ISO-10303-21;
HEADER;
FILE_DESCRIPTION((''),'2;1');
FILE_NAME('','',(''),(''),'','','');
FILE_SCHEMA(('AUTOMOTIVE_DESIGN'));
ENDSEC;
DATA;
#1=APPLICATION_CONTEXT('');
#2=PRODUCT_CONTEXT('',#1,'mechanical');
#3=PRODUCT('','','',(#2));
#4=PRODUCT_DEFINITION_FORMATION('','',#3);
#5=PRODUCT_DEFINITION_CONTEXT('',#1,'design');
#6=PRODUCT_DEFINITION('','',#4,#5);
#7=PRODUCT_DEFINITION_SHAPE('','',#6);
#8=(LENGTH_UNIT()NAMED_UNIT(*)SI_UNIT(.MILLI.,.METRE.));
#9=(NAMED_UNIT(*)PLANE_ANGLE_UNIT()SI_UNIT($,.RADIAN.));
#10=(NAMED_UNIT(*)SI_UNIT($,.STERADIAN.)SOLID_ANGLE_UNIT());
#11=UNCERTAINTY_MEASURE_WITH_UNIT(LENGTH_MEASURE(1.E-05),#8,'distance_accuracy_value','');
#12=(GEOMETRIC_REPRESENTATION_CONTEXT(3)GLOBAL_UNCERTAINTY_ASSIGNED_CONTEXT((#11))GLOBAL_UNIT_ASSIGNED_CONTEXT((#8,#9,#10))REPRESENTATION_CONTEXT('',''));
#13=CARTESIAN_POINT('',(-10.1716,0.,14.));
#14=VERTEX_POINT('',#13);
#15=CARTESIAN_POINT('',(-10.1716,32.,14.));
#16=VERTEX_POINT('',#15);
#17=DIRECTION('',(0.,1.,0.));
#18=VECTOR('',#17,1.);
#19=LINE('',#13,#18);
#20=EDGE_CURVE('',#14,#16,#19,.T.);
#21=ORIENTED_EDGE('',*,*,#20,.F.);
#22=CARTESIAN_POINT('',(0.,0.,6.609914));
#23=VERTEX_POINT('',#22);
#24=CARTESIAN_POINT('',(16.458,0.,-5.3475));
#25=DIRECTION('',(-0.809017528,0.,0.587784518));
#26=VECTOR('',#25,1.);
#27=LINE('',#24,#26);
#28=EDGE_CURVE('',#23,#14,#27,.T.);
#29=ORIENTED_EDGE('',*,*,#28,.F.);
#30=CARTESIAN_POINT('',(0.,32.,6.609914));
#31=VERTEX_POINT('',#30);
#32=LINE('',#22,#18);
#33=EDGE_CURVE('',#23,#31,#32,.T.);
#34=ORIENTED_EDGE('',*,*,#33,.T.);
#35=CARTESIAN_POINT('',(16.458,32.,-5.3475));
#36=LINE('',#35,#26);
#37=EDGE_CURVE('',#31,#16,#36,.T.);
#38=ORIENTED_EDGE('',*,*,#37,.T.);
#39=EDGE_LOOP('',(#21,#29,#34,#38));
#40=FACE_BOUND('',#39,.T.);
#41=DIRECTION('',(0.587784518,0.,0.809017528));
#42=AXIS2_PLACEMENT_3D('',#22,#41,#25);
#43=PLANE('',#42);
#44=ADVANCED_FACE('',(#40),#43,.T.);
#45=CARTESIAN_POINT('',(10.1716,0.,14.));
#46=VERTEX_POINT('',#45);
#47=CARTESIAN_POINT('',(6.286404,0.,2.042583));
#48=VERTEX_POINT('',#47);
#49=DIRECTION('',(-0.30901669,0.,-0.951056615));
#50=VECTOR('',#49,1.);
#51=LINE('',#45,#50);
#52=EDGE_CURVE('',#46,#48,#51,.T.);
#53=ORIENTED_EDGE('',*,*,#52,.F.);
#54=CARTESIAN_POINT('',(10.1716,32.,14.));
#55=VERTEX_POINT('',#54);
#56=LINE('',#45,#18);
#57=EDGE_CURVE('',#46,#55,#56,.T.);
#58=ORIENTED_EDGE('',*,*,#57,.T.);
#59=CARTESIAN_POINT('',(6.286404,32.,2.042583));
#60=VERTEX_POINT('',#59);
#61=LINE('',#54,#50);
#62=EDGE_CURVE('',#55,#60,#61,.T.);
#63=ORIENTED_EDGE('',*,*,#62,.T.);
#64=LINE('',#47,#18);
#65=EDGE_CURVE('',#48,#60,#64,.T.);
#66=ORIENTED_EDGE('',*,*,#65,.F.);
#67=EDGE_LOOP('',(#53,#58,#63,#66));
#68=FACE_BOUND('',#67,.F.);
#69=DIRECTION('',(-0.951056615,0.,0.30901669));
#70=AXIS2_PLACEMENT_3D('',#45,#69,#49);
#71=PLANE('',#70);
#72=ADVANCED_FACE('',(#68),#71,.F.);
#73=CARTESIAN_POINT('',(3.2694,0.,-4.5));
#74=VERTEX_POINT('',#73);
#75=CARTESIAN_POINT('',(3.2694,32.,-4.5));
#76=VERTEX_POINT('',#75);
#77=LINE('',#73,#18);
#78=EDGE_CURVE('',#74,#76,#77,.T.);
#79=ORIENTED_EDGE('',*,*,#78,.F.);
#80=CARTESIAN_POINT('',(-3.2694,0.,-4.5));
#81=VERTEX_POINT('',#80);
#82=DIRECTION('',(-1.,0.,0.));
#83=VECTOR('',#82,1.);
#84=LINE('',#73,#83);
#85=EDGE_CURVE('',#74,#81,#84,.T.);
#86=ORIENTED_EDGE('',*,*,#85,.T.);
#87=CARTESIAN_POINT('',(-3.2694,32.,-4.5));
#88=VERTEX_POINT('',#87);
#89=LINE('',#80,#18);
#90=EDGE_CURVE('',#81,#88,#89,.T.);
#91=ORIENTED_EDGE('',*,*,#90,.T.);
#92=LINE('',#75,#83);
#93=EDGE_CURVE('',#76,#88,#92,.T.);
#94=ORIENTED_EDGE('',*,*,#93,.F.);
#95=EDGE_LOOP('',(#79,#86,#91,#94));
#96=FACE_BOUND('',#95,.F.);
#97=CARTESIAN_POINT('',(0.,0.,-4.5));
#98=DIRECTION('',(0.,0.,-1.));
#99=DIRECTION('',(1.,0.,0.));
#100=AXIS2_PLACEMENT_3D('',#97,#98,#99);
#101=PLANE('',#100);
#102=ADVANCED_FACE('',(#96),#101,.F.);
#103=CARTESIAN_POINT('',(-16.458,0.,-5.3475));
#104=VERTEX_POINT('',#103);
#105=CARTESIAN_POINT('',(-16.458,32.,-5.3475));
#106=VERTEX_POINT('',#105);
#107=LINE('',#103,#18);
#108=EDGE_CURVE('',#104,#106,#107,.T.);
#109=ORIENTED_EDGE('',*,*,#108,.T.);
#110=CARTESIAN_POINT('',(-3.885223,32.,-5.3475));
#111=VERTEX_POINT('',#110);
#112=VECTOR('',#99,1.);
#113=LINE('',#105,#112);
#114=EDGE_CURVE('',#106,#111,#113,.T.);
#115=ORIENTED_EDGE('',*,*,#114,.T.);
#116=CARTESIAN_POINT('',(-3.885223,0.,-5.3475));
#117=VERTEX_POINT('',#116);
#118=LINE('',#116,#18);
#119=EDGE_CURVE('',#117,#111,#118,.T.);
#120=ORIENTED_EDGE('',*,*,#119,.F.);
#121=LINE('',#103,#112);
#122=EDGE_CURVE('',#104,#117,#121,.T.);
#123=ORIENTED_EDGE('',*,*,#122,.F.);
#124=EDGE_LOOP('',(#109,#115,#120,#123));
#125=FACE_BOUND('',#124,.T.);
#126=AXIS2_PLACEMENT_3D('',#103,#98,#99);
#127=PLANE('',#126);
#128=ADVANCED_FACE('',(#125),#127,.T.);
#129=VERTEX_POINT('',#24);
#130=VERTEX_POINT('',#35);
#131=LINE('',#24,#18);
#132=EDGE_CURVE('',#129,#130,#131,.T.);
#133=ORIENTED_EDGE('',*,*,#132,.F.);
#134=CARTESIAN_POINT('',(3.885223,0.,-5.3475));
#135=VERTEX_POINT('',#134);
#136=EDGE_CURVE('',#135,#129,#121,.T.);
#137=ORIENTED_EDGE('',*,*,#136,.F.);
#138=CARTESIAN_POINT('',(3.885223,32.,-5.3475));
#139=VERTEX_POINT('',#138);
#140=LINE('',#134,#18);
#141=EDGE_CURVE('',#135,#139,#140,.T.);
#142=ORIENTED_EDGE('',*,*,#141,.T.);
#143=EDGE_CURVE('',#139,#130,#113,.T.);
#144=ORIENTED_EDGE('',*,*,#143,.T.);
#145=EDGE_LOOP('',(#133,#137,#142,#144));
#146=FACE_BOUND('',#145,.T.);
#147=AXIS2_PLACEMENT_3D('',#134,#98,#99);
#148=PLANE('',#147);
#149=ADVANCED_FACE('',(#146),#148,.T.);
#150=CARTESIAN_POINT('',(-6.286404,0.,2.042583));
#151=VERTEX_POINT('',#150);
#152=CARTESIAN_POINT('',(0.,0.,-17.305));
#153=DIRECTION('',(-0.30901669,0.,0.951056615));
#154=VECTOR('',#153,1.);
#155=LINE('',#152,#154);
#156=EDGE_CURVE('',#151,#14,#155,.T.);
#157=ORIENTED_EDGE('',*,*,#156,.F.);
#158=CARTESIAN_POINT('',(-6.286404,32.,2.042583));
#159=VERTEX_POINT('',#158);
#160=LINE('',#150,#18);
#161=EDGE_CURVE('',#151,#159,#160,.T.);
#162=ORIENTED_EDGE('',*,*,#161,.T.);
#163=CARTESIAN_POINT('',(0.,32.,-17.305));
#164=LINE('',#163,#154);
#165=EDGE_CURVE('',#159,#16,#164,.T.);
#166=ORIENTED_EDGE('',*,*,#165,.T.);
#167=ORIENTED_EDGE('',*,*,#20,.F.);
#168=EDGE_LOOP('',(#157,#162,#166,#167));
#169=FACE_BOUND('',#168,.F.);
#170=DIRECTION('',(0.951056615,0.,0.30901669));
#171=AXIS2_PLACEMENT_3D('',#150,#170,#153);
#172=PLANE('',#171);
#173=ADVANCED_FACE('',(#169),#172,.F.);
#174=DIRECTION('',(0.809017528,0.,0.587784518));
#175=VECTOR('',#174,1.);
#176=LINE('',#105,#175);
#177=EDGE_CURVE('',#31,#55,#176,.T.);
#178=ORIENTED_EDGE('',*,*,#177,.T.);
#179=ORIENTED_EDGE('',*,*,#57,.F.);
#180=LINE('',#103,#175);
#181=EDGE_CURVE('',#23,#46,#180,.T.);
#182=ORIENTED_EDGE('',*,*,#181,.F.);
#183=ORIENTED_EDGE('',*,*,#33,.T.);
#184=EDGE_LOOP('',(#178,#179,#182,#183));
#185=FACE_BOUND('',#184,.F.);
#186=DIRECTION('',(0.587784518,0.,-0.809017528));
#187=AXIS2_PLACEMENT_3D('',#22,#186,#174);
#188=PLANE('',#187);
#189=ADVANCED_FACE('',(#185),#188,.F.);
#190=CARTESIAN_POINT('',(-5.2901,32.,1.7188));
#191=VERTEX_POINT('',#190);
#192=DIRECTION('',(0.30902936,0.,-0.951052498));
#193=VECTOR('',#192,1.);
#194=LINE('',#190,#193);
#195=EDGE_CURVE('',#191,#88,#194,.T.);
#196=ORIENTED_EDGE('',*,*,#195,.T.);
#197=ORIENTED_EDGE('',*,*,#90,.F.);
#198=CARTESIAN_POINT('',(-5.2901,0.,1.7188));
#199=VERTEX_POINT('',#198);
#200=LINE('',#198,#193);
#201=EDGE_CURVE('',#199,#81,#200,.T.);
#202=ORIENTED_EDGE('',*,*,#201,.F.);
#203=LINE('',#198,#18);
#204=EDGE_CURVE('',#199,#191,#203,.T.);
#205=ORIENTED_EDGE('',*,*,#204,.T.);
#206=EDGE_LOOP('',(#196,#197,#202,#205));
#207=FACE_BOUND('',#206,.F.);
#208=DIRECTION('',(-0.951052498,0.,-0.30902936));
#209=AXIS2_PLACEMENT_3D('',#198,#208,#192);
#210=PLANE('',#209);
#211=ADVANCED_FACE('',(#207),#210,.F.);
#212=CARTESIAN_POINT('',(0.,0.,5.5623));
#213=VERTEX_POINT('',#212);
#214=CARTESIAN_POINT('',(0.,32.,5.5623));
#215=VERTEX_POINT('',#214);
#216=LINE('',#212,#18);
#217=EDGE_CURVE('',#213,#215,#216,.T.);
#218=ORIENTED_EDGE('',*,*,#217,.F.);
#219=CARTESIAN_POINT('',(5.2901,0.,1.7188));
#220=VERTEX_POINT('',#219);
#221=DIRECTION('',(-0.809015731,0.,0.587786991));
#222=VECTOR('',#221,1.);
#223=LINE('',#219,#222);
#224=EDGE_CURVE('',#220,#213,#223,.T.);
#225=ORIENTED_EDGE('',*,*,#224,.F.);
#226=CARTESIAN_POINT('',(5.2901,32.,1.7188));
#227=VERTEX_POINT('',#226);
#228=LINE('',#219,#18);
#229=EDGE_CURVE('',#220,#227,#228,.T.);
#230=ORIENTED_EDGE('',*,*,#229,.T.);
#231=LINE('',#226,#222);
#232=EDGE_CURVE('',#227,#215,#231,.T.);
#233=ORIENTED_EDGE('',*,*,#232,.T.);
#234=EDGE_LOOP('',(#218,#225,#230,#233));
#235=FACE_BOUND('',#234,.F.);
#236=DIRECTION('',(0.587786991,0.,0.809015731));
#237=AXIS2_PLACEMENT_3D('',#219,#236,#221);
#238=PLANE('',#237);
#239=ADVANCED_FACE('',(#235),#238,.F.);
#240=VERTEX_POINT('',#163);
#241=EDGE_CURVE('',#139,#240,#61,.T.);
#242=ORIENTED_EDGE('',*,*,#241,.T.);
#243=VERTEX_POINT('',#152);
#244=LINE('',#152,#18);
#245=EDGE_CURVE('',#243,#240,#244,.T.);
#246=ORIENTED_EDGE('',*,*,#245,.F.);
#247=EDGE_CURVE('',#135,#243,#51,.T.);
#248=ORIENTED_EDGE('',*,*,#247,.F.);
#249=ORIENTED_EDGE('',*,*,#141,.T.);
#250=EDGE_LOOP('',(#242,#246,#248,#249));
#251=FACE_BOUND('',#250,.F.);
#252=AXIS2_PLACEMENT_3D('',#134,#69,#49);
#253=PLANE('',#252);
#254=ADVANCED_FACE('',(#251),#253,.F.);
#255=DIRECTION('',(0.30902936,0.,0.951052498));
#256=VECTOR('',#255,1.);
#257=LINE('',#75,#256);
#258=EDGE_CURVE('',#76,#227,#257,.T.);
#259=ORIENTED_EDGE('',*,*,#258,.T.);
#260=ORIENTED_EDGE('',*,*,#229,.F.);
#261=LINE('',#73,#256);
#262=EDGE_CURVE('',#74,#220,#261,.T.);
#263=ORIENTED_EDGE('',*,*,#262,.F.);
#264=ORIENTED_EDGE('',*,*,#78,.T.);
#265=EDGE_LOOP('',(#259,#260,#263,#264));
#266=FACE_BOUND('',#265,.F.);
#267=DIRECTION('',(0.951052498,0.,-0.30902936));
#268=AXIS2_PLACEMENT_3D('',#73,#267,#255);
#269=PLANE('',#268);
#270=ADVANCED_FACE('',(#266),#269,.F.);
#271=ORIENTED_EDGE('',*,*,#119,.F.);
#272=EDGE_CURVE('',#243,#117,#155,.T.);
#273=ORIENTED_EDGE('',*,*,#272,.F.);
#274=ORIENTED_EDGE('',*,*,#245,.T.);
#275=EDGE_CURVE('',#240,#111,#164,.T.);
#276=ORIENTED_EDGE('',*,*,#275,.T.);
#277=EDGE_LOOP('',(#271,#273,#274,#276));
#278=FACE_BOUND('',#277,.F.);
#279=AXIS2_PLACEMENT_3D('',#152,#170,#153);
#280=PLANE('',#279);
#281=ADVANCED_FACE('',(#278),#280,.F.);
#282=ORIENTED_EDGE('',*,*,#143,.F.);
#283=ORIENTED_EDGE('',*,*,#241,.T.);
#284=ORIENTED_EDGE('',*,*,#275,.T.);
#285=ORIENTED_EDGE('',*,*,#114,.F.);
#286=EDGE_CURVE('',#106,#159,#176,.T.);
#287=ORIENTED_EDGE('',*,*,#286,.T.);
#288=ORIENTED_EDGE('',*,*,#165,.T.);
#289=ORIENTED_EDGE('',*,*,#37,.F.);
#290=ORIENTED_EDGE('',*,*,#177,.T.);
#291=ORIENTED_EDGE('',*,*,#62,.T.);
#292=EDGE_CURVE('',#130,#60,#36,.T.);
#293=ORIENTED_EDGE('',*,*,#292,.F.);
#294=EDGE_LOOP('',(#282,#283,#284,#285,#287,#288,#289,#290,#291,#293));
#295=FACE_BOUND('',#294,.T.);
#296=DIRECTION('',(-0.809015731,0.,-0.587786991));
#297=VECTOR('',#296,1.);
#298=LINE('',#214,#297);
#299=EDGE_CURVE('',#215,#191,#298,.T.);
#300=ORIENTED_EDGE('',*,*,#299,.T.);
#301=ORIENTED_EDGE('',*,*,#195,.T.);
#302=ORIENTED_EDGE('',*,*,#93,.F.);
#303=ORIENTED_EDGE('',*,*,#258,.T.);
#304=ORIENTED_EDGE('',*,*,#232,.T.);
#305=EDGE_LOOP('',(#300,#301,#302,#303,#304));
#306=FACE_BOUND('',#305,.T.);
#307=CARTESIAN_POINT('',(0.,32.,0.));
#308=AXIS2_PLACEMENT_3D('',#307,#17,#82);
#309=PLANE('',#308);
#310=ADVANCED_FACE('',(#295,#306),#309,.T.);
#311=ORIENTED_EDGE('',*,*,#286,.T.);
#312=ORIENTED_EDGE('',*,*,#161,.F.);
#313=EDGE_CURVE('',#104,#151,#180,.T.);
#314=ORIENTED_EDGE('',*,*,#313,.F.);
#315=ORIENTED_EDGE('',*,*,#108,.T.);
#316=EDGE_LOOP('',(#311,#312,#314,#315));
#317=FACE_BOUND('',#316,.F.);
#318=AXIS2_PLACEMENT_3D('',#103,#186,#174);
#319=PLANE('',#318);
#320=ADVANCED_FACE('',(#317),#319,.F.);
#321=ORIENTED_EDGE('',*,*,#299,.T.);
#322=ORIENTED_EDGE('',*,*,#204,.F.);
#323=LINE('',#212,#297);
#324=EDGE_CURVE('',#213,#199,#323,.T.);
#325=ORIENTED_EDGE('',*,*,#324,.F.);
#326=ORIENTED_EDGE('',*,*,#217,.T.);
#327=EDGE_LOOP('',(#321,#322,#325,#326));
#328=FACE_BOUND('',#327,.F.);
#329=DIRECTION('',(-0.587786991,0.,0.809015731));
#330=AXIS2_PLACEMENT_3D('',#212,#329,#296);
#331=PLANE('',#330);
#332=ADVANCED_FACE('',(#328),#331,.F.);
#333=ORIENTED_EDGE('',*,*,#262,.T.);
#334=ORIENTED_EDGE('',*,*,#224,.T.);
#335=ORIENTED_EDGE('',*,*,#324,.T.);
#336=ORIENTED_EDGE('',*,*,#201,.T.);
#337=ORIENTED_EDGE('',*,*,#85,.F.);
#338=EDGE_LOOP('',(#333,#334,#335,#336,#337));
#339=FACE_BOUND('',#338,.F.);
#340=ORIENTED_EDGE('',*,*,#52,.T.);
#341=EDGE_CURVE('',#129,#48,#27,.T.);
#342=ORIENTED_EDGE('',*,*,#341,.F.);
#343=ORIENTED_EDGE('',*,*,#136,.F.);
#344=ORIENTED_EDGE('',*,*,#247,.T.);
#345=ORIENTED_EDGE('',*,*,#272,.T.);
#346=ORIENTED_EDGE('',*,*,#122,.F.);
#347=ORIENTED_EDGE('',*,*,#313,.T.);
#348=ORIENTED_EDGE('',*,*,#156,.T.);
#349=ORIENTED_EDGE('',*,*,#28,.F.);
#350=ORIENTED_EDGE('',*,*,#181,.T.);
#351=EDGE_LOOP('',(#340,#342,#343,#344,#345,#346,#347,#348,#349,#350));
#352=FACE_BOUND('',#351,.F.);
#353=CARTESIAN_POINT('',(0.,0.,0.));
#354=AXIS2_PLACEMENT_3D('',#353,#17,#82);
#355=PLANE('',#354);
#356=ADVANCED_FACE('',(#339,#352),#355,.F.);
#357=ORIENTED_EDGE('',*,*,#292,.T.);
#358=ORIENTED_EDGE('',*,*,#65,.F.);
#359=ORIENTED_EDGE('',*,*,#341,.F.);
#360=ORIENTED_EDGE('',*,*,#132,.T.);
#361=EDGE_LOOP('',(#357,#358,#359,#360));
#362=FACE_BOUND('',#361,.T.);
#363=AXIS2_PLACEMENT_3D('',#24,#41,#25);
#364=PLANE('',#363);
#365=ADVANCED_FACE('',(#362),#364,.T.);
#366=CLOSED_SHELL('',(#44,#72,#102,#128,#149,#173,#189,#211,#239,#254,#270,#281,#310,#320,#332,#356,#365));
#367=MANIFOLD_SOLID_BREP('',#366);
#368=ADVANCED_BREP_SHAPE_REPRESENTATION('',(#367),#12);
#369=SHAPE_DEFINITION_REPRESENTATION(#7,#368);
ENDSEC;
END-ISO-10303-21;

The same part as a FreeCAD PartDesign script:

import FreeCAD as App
import Part
import Sketcher

V = App.Vector
Q = App.Units.Quantity


def add_polygon(sketch, points):
    """Adds a closed chain of lines whose ends are joined by coincident constraints."""
    first, n = sketch.GeometryCount, len(points)
    for a, b in zip(points, points[1:] + points[:1]):
        sketch.addGeometry(Part.LineSegment(App.Vector(*a, 0), App.Vector(*b, 0)), False)
    for i in range(n):
        sketch.addConstraint(Sketcher.Constraint("Coincident", first + i, 2, first + (i + 1) % n, 1))

doc = App.newDocument("Part")
body = doc.addObject("PartDesign::Body", "Body")

# Sketch on XZ plane
sketch1 = doc.addObject("Sketcher::SketchObject", "Sketch")
body.addObject(sketch1)
sketch1.AttachmentSupport = (doc.XZ_Plane, [""])
sketch1.MapMode = "FlatFace"
add_polygon(sketch1, [(-10, 14), (0, 7), (10, 14), (6, 2), (16, -5), (4, -5), (0, -17), (-4, -5), (-16, -5), (-6, 2)])  # lines 0-9
add_polygon(sketch1, [(5, 2), (0, 6), (-5, 2), (-3, -4), (3, -4)])  # lines 10-14
sketch1.addConstraint(Sketcher.Constraint("Horizontal", 4))
sketch1.addConstraint(Sketcher.Constraint("Horizontal", 7))
sketch1.addConstraint(Sketcher.Constraint("Horizontal", 13))
sketch1.addConstraint(Sketcher.Constraint("Symmetric", 4, 2, 6, 2, -2))
sketch1.addConstraint(Sketcher.Constraint("Symmetric", 2, 2, 8, 2, -2))
sketch1.addConstraint(Sketcher.Constraint("Symmetric", 1, 2, 9, 2, -2))
sketch1.addConstraint(Sketcher.Constraint("Symmetric", 11, 2, 14, 2, -2))
sketch1.addConstraint(Sketcher.Constraint("PointOnObject", 0, 2, -2))
sketch1.addConstraint(Sketcher.Constraint("PointOnObject", 5, 2, -2))
sketch1.addConstraint(Sketcher.Constraint("PointOnObject", 10, 2, -2))
sketch1.addConstraint(Sketcher.Constraint("Parallel", 0, 3))
sketch1.addConstraint(Sketcher.Constraint("Parallel", 2, 5))
sketch1.addConstraint(Sketcher.Constraint("Parallel", 1, 8))
sketch1.addConstraint(Sketcher.Constraint("Parallel", 3, 10))
sketch1.addConstraint(Sketcher.Constraint("Parallel", 9, 12))
sketch1.addConstraint(Sketcher.Constraint("Parallel", 5, 14))
sketch1.addConstraint(Sketcher.Constraint("Equal", 1, 2))
sketch1.addConstraint(Sketcher.Constraint("Equal", 2, 3))
sketch1.addConstraint(Sketcher.Constraint("Equal", 3, 5))
sketch1.addConstraint(Sketcher.Constraint("Equal", 11, 12))
sketch1.addConstraint(Sketcher.Constraint("Angle", 0, Q("-36 deg")))
sketch1.addConstraint(Sketcher.Constraint("Angle", 2, Q("-108 deg")))
sketch1.addConstraint(Sketcher.Constraint("DistanceX", 4, 2, 4, 1, Q("0.495 in")))
sketch1.addConstraint(Sketcher.Constraint("DistanceY", -1, 1, 1, 2, 14.0))
sketch1.addConstraint(Sketcher.Constraint("DistanceY", 12, 2, -1, 1, 4.5))
sketch1.addConstraint(Sketcher.Constraint("DistanceY", -1, 1, 10, 2, Q("0.219 in")))
pad1 = doc.addObject("PartDesign::Pad", "Pad")
body.addObject(pad1)
pad1.Profile = sketch1
pad1.Length = 32
pad1.Reversed = True

doc.recompute()
